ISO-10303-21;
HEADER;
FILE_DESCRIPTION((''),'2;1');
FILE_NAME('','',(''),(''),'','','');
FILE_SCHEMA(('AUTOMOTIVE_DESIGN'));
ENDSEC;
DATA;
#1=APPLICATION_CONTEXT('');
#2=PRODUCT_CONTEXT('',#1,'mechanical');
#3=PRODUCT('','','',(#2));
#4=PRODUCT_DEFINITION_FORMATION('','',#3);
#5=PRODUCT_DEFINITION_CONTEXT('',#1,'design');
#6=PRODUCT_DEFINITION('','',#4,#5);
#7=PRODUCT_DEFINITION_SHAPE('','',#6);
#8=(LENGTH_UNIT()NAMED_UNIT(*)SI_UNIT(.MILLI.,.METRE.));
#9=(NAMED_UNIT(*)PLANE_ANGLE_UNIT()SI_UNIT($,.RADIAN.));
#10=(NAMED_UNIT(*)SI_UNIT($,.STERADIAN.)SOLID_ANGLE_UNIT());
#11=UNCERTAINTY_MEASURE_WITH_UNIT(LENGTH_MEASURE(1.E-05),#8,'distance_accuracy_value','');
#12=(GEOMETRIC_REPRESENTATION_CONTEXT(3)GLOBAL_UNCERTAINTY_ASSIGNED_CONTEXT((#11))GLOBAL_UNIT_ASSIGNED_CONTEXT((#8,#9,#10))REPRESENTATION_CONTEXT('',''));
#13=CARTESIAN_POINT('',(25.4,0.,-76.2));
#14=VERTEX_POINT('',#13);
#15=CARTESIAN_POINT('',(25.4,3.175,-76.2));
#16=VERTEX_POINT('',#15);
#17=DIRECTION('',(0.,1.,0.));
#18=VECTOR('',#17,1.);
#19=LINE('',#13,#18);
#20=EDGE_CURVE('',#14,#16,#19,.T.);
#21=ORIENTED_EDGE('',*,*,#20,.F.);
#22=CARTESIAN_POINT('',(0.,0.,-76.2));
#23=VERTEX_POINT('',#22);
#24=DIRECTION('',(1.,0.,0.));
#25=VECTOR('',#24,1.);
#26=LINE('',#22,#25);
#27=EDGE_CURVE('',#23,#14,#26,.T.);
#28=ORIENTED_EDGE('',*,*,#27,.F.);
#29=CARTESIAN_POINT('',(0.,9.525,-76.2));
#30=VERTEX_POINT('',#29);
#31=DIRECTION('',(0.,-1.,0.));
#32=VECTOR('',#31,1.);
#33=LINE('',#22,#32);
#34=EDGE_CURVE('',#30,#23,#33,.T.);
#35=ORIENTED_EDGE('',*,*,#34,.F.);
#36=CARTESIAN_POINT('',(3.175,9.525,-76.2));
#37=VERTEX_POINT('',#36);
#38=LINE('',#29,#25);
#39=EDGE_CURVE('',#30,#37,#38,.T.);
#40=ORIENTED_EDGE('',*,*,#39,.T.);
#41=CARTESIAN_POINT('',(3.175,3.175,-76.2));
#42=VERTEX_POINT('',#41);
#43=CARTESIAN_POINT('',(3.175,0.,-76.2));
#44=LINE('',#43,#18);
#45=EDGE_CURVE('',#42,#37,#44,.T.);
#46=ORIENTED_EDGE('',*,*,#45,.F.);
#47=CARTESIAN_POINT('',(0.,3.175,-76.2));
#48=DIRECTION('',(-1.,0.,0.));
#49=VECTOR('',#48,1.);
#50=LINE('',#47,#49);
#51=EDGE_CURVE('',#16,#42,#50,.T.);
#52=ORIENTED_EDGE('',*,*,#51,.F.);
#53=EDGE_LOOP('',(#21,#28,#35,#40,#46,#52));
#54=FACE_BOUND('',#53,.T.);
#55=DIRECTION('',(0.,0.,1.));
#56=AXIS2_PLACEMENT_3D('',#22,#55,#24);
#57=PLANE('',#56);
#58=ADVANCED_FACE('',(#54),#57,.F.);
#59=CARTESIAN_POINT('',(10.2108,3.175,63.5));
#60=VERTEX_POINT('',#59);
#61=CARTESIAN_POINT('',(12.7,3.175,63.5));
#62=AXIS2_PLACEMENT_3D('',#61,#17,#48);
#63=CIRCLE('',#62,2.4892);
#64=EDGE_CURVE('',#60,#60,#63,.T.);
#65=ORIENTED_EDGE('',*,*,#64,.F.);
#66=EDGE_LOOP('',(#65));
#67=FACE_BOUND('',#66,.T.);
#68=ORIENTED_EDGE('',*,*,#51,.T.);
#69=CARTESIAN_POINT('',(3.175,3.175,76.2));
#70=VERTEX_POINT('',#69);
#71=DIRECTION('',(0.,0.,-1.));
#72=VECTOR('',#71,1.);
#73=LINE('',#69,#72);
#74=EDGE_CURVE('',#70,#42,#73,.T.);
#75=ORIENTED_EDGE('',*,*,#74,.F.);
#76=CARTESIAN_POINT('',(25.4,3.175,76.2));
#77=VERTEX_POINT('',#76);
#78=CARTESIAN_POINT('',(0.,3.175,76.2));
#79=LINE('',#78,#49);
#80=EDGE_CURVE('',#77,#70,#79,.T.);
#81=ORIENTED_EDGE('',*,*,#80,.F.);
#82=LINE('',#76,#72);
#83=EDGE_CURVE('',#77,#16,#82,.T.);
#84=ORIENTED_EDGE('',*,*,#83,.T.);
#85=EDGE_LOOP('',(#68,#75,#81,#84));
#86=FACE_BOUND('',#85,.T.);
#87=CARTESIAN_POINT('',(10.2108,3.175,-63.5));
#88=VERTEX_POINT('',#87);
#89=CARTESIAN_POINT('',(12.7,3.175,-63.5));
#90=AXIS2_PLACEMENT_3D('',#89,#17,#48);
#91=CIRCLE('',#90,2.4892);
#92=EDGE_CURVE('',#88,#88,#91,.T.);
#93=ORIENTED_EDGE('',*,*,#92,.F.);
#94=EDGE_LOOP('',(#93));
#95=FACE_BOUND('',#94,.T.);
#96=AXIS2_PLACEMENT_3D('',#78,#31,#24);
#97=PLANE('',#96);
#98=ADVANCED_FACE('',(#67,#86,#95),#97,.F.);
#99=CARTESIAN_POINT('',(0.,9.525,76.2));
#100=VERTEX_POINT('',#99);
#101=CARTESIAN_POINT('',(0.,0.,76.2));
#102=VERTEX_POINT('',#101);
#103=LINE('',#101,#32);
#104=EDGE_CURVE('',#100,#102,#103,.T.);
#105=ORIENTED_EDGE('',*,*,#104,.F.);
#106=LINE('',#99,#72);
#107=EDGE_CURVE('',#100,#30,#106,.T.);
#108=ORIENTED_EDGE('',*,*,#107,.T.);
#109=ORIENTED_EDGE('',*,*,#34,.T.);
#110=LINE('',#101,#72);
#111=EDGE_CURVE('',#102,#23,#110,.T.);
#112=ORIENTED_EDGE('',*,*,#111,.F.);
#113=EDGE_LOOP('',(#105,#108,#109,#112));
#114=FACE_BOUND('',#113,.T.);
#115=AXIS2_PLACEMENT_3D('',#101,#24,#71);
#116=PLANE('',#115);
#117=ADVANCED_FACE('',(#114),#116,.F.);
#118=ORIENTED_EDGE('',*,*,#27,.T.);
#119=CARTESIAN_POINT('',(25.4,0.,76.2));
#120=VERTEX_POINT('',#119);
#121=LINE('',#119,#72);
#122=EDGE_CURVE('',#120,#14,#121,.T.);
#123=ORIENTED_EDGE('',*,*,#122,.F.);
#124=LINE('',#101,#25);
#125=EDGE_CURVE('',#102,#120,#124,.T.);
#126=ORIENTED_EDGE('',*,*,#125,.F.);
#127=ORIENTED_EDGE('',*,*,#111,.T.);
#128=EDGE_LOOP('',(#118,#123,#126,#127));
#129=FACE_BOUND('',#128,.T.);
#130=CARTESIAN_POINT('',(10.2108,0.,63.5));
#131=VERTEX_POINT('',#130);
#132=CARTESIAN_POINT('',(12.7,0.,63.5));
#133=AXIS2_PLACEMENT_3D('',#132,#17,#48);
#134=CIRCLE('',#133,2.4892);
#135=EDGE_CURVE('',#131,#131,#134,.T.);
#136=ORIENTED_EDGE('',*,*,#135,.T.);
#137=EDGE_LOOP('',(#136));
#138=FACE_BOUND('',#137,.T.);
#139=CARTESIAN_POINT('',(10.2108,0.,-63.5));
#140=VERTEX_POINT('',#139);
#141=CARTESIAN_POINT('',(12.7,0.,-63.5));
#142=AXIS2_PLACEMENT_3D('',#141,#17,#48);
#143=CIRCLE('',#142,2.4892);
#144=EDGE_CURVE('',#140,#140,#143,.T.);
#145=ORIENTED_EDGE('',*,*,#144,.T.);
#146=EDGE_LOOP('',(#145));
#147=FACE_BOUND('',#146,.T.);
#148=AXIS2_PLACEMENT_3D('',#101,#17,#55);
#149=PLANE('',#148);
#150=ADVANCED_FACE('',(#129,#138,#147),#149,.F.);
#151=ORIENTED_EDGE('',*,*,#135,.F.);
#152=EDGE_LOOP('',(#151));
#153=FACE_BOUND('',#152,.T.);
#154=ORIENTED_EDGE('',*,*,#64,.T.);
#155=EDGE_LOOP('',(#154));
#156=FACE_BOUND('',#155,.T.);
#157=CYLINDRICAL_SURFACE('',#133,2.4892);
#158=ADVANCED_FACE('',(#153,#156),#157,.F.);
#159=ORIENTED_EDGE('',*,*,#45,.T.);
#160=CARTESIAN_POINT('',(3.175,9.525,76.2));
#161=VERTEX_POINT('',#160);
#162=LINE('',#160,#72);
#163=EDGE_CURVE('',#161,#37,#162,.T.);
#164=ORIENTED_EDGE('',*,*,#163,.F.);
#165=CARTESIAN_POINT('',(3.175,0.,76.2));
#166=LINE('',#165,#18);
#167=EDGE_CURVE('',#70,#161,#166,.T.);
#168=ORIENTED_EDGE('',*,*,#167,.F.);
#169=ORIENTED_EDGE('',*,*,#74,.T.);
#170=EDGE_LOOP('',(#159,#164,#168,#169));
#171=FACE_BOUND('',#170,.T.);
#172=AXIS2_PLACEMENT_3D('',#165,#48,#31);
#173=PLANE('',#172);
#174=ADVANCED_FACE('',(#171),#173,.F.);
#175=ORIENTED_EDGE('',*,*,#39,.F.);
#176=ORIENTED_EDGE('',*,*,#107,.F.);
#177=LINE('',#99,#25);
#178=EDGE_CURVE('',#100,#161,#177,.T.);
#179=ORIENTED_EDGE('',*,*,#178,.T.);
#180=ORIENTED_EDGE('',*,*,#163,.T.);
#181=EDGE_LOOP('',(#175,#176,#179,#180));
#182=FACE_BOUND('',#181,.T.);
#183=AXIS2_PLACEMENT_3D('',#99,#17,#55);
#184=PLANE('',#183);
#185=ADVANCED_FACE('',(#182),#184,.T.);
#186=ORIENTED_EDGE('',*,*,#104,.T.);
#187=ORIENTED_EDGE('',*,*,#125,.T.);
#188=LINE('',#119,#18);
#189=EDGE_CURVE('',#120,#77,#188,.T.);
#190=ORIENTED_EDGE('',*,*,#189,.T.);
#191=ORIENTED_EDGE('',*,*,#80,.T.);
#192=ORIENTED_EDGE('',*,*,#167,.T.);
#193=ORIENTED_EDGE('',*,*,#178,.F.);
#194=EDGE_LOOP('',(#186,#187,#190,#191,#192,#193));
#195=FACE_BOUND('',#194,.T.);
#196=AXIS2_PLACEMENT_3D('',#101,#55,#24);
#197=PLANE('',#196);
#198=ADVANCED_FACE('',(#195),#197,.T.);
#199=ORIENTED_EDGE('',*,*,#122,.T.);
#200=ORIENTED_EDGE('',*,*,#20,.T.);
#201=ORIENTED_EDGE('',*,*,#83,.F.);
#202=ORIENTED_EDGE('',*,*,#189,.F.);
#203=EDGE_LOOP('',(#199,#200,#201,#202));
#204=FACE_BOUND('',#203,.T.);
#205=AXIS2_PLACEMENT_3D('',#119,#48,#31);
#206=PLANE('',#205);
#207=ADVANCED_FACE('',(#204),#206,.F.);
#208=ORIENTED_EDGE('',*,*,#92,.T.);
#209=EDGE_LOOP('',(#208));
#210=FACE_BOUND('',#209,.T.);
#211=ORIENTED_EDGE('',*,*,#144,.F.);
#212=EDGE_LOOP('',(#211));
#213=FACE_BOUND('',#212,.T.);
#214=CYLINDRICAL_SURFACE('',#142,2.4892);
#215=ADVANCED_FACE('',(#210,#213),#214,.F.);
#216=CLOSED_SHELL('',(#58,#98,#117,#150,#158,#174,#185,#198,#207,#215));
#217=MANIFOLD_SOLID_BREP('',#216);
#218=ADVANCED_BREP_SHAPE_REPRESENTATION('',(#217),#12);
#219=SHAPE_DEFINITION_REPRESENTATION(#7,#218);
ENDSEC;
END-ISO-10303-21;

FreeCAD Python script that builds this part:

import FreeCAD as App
import Part
import Sketcher
from FreeCAD import Vector
Q = App.Units.Quantity

doc = App.newDocument("Part")
body = doc.addObject("PartDesign::Body", "Body")

sketch1 = body.newObject("Sketcher::SketchObject", "Sketch")
sketch1.AttachmentSupport = (doc.getObject("XY_Plane"), [""])
sketch1.MapMode = "FlatFace"
sketch1.addGeometry([
    Part.LineSegment(Vector(0, 9.5, 0), Vector(0, 0, 0)),
    Part.LineSegment(Vector(0, 0, 0), Vector(25.4, 0, 0)),
    Part.LineSegment(Vector(25.4, 0, 0), Vector(25.4, 3.2, 0)),
    Part.LineSegment(Vector(25.4, 3.2, 0), Vector(3.2, 3.2, 0)),
    Part.LineSegment(Vector(3.2, 3.2, 0), Vector(3.2, 9.5, 0)),
    Part.LineSegment(Vector(3.2, 9.5, 0), Vector(0, 9.5, 0)),
], False)
sketch1.addConstraint([
    Sketcher.Constraint("Coincident", 0, 2, 1, 1),
    Sketcher.Constraint("Coincident", 1, 2, 2, 1),
    Sketcher.Constraint("Coincident", 2, 2, 3, 1),
    Sketcher.Constraint("Coincident", 3, 2, 4, 1),
    Sketcher.Constraint("Coincident", 4, 2, 5, 1),
    Sketcher.Constraint("Coincident", 5, 2, 0, 1),
    Sketcher.Constraint("Vertical", 0),
    Sketcher.Constraint("Horizontal", 1),
    Sketcher.Constraint("Vertical", 2),
    Sketcher.Constraint("Horizontal", 3),
    Sketcher.Constraint("Vertical", 4),
    Sketcher.Constraint("Horizontal", 5),
    Sketcher.Constraint("Coincident", 0, 2, -1, 1),
    Sketcher.Constraint("Equal", 5, 2),
    Sketcher.Constraint("DistanceX", 1, 1, 1, 2, Q("1 in")),
    Sketcher.Constraint("DistanceY", 4, 1, 4, 2, Q("0.25 in")),
    Sketcher.Constraint("DistanceX", 3, 2, 3, 1, Q("0.875 in")),
])
pad1 = body.newObject("PartDesign::Pad", "Pad")
pad1.Profile = sketch1
pad1.Length = Q("6 in")
pad1.Midplane = True

sketch2 = body.newObject("Sketcher::SketchObject", "Sketch001")
sketch2.AttachmentSupport = (doc.getObject("XZ_Plane"), [""])
sketch2.MapMode = "FlatFace"
sketch2.AttachmentOffset = App.Placement(Vector(0, 0, -0.125 * 25.4), App.Rotation())
sketch2.addGeometry([
    Part.Circle(Vector(12.7, 63.5, 0), Vector(0, 0, 1), 2.5),
    Part.Circle(Vector(12.7, -63.5, 0), Vector(0, 0, 1), 2.5),
], False)
sketch2.addConstraint([
    Sketcher.Constraint("Equal", 0, 1),
    Sketcher.Constraint("Symmetric", 0, 3, 1, 3, -1),
    Sketcher.Constraint("Diameter", 0, Q("0.196 in")),
    Sketcher.Constraint("DistanceY", 1, 3, 0, 3, Q("5 in")),
    Sketcher.Constraint("DistanceX", -1, 1, 0, 3, Q("0.5 in")),
])
pocket1 = body.newObject("PartDesign::Pocket", "Pocket")
pocket1.Profile = sketch2
pocket1.Type = "ThroughAll"
pocket1.Reversed = True

doc.recompute()
